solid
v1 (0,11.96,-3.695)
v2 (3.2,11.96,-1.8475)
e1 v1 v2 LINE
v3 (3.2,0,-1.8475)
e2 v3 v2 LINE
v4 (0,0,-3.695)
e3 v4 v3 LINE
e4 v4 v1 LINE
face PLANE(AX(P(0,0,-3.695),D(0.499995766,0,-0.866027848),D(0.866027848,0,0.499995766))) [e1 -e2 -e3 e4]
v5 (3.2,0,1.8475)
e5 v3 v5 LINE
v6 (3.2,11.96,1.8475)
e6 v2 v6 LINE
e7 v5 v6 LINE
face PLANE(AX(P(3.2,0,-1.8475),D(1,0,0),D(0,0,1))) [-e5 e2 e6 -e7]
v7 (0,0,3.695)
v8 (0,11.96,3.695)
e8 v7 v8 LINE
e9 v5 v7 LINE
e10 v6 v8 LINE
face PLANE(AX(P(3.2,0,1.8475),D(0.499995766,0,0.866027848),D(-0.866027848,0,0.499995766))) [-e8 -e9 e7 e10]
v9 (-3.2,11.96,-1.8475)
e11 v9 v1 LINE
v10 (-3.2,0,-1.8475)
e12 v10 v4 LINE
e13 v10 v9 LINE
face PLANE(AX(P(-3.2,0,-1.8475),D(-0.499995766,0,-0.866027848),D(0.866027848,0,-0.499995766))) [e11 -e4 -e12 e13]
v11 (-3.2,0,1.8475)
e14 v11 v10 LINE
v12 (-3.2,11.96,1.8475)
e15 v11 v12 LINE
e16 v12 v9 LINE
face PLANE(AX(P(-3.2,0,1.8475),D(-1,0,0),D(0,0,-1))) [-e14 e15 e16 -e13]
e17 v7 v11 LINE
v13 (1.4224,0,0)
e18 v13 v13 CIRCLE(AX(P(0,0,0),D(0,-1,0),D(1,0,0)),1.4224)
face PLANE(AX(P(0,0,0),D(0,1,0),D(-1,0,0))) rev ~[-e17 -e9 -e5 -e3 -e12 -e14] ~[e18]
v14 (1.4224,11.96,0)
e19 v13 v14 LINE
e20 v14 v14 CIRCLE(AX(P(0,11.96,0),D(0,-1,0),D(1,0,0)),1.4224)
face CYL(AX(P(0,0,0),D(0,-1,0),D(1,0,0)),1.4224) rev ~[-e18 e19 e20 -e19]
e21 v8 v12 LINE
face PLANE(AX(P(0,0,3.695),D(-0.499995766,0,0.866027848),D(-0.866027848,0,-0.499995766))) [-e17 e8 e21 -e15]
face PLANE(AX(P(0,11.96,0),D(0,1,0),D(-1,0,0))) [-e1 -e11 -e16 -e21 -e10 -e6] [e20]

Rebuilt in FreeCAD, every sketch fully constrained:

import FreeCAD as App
import Part
import Sketcher
from FreeCAD import Vector
Q = App.Units.Quantity

doc = App.newDocument("Part")
params = doc.addObject("Spreadsheet::Sheet", "Params")
for row, (alias, value) in enumerate([
    ("pad1_length", "11.96 mm"),
    ("sketch2_diameter", "0.112 in"),
], start=1):
    params.set(f"A{row}", alias)
    params.set(f"B{row}", "=" + value)
    params.setAlias(f"B{row}", alias)

body = doc.addObject("PartDesign::Body", "Body")

# Sketch on XZ plane
sketch1 = doc.addObject("Sketcher::SketchObject", "Sketch")
body.addObject(sketch1)
sketch1.AttachmentSupport = (doc.XZ_Plane, [""])
sketch1.MapMode = "FlatFace"
sketch1.addGeometry(Part.LineSegment(Vector(-3.2, -1.8475, 0), Vector(-3.2, 1.8475, 0)), False)
sketch1.addGeometry(Part.LineSegment(Vector(-3.2, 1.8475, 0), Vector(0, 3.695, 0)), False)
sketch1.addGeometry(Part.LineSegment(Vector(0, 3.695, 0), Vector(3.2, 1.8475, 0)), False)
sketch1.addGeometry(Part.LineSegment(Vector(3.2, 1.8475, 0), Vector(3.2, -1.8475, 0)), False)
sketch1.addGeometry(Part.LineSegment(Vector(3.2, -1.8475, 0), Vector(0, -3.695, 0)), False)
sketch1.addGeometry(Part.LineSegment(Vector(0, -3.695, 0), Vector(-3.2, -1.8475, 0)), False)
sketch1.addConstraint(Sketcher.Constraint("Coincident", 0, 2, 1, 1))
sketch1.addConstraint(Sketcher.Constraint("Coincident", 1, 2, 2, 1))
sketch1.addConstraint(Sketcher.Constraint("Coincident", 2, 2, 3, 1))
sketch1.addConstraint(Sketcher.Constraint("Coincident", 3, 2, 4, 1))
sketch1.addConstraint(Sketcher.Constraint("Coincident", 4, 2, 5, 1))
sketch1.addConstraint(Sketcher.Constraint("Coincident", 5, 2, 0, 1))
sketch1.addConstraint(Sketcher.Constraint("Vertical", 0))
sketch1.addConstraint(Sketcher.Constraint("Vertical", 3))
sketch1.addConstraint(Sketcher.Constraint("Symmetric", 0, 2, 3, 2, -1, 1))
sketch1.addConstraint(Sketcher.Constraint("Symmetric", 1, 2, 4, 2, -1, 1))
sketch1.addConstraint(Sketcher.Constraint("PointOnObject", 1, 2, -2))
sketch1.addConstraint(Sketcher.Constraint("Parallel", 2, 5))
sketch1.addConstraint(Sketcher.Constraint("Horizontal", 0, 2, 2, 2))
sketch1.addConstraint(Sketcher.Constraint("Angle", 1, Q("29.9997 deg")))
sketch1.addConstraint(Sketcher.Constraint("DistanceX", 0, 2, 2, 2, 6.4))
sketch1.addConstraint(Sketcher.Constraint("DistanceY", 0, 1, 0, 2, 3.695))
pad1 = doc.addObject("PartDesign::Pad", "Pad")
body.addObject(pad1)
pad1.Profile = sketch1
pad1.setExpression("Length", "Params.pad1_length")
pad1.Reversed = True

# Sketch on XZ plane
sketch2 = doc.addObject("Sketcher::SketchObject", "Sketch001")
body.addObject(sketch2)
sketch2.AttachmentSupport = (doc.XZ_Plane, [""])
sketch2.MapMode = "FlatFace"
sketch2.addGeometry(Part.Circle(Vector(0, 0, 0), Vector(0, 0, 1), 1.4224), False)
sketch2.addConstraint(Sketcher.Constraint("Coincident", 0, 3, -1, 1))
sketch2.addConstraint(Sketcher.Constraint("Diameter", 0, Q("0.112 in")))
sketch2.setExpression("Constraints[1]", "Params.sketch2_diameter")
pocket1 = doc.addObject("PartDesign::Pocket", "Pocket")
body.addObject(pocket1)
pocket1.Profile = sketch2
pocket1.Type = "ThroughAll"

doc.recompute()
